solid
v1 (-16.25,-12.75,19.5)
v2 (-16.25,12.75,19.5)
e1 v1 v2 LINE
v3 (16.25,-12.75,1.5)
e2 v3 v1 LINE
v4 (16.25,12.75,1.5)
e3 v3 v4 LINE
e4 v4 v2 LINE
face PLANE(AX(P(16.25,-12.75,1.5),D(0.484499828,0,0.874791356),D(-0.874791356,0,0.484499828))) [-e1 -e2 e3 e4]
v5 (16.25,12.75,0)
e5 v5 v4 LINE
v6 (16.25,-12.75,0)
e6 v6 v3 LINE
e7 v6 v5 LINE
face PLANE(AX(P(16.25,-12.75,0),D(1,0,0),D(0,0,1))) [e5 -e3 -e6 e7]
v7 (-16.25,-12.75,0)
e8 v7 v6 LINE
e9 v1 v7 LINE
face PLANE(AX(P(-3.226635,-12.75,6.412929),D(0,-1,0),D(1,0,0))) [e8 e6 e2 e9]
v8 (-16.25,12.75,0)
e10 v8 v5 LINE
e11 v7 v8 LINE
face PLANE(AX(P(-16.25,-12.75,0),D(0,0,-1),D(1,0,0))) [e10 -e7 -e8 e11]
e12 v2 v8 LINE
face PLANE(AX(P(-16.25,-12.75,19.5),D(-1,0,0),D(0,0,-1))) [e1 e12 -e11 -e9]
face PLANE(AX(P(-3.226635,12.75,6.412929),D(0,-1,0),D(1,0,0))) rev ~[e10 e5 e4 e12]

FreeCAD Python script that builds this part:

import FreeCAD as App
import Part
import Sketcher

V = App.Vector


def add_polygon(sketch, points):
    """Adds a closed chain of lines whose ends are joined by coincident constraints."""
    first, n = sketch.GeometryCount, len(points)
    for a, b in zip(points, points[1:] + points[:1]):
        sketch.addGeometry(Part.LineSegment(App.Vector(*a, 0), App.Vector(*b, 0)), False)
    for i in range(n):
        sketch.addConstraint(Sketcher.Constraint("Coincident", first + i, 2, first + (i + 1) % n, 1))

doc = App.newDocument("Part")
params = doc.addObject("Spreadsheet::Sheet", "Params")
for row, (alias, value) in enumerate([
    ("sketch1_width", "32.5 mm"),
    ("sketch1_height", "1.5 mm"),
    ("sketch1_height2", "19.5 mm"),
    ("pad1_length", "25.5 mm"),
], start=1):
    params.set(f"A{row}", alias)
    params.set(f"B{row}", "=" + value)
    params.setAlias(f"B{row}", alias)

body = doc.addObject("PartDesign::Body", "Body")

sketch1 = body.newObject("Sketcher::SketchObject", "Sketch")
sketch1.AttachmentSupport = (doc.getObject("XZ_Plane"), [""])
sketch1.MapMode = "FlatFace"
sketch1.AttachmentOffset = App.Placement(V(0, 0, 12.75), App.Rotation())
add_polygon(sketch1, [(-16.2, 0), (16.2, 0), (16.2, 1.5), (-16.2, 19.5)])
sketch1.addConstraint(Sketcher.Constraint("Horizontal", 0))
sketch1.addConstraint(Sketcher.Constraint("Vertical", 1))
sketch1.addConstraint(Sketcher.Constraint("Vertical", 3))
sketch1.addConstraint(Sketcher.Constraint("Symmetric", 0, 2, 3, 2, -1, 1))
sketch1.addConstraint(Sketcher.Constraint("DistanceX", 0, 1, 0, 2, 32.5))
sketch1.addConstraint(Sketcher.Constraint("DistanceY", 1, 1, 1, 2, 1.5))
sketch1.addConstraint(Sketcher.Constraint("DistanceY", 3, 2, 3, 1, 19.5))
sketch1.setExpression("Constraints[8]", "Params.sketch1_width")
sketch1.setExpression("Constraints[9]", "Params.sketch1_height")
sketch1.setExpression("Constraints[10]", "Params.sketch1_height2")
pad1 = body.newObject("PartDesign::Pad", "Pad")
pad1.Profile = sketch1
pad1.setExpression("Length", "Params.pad1_length")
pad1.Reversed = True

doc.recompute()
